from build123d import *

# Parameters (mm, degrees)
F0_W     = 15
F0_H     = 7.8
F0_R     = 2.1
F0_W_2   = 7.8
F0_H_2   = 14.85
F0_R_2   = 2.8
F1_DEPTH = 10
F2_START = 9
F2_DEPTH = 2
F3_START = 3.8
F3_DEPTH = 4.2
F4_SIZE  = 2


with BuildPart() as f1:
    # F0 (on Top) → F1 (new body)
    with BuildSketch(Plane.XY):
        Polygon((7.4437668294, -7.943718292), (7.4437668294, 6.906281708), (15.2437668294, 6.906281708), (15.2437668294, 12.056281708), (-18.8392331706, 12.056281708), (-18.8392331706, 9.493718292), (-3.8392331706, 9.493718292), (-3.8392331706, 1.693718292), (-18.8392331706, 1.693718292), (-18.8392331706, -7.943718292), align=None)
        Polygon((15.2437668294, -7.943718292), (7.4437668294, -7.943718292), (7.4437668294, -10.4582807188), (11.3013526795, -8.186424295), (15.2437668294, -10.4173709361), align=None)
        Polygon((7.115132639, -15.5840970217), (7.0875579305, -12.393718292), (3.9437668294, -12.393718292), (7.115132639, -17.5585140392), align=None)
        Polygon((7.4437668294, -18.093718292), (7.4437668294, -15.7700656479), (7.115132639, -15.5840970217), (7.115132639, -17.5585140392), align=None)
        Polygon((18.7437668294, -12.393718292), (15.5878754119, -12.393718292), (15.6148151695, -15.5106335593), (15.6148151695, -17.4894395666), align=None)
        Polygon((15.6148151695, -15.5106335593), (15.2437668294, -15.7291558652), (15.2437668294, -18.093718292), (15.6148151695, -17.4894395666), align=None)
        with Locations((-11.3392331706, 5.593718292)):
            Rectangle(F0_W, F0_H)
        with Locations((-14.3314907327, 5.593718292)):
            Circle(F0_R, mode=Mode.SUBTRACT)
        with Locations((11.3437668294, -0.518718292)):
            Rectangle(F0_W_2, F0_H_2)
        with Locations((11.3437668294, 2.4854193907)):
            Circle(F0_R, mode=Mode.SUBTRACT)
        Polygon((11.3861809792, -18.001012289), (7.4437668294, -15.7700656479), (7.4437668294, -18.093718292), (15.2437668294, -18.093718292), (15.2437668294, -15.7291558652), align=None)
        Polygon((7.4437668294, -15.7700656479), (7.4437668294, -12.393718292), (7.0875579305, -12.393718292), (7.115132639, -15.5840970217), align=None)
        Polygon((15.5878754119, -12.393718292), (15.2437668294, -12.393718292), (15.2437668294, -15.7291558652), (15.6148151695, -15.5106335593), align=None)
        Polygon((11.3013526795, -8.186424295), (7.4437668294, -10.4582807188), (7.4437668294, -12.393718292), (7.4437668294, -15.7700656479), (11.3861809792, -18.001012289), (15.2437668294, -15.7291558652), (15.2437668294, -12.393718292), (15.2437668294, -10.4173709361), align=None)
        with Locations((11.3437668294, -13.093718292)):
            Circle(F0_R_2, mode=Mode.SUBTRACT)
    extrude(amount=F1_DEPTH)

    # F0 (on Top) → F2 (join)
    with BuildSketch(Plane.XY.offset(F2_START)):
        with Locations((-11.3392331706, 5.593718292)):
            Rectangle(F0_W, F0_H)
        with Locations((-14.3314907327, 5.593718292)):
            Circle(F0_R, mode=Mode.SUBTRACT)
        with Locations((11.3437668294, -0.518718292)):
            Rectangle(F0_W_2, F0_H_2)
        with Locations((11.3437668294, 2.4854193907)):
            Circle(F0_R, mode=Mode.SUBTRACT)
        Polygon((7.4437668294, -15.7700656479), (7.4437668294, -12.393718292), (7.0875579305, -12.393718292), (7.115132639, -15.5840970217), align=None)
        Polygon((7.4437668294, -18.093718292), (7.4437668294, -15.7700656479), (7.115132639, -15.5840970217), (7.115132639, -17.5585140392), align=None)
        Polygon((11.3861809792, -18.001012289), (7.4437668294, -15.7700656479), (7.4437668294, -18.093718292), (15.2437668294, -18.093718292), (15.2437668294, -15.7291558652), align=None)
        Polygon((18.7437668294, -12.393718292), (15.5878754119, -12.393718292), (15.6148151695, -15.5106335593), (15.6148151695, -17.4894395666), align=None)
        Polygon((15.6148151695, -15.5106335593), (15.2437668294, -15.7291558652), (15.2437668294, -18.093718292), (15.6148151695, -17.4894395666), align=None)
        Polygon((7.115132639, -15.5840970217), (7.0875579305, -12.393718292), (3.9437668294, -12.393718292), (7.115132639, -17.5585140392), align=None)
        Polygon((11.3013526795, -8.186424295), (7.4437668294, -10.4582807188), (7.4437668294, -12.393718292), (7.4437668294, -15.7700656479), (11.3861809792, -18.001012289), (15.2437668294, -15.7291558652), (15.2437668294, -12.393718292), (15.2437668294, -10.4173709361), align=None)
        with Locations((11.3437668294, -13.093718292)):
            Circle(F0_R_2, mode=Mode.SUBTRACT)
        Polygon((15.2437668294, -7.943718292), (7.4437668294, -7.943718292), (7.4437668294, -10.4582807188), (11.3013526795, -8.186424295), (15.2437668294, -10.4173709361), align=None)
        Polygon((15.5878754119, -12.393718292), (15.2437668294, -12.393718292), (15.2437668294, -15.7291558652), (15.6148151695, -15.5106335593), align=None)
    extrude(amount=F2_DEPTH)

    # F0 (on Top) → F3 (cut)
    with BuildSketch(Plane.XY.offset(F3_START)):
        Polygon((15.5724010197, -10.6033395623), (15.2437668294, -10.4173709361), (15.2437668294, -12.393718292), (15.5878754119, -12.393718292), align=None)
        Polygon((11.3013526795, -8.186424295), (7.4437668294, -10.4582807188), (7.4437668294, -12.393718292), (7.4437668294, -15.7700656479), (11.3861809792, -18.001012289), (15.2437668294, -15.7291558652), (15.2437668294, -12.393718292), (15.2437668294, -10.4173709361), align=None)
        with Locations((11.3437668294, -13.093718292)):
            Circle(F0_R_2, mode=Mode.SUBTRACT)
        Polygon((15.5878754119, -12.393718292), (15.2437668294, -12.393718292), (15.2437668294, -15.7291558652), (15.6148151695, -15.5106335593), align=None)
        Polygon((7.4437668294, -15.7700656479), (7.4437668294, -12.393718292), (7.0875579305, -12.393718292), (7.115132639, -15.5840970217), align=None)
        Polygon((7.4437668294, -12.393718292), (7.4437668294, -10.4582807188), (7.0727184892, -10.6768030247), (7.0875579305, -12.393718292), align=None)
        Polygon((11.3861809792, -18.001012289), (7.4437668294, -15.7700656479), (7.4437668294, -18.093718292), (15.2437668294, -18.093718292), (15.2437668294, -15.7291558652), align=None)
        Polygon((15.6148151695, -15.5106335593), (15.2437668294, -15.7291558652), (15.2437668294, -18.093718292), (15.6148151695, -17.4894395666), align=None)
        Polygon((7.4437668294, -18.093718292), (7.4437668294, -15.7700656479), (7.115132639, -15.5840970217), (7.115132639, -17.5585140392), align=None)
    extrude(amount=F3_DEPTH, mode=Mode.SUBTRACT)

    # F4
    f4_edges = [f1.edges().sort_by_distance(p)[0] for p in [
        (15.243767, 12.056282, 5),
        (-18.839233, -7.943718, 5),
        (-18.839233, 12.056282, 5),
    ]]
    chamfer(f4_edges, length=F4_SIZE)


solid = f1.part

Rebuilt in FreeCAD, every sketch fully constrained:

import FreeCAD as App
import Part
import Sketcher
from FreeCAD import Vector


def edges_at(feature, points):
    """Names of the edges that pass closest to the given points."""
    edges = feature.Shape.Edges
    near = lambda p: min(range(len(edges)), key=lambda i: edges[i].distToShape(Part.Vertex(*p))[0])
    return sorted({f"Edge{near(p) + 1}" for p in points})


def add_polygon(sketch, points):
    """Adds a closed chain of lines whose ends are joined by coincident constraints."""
    first, n = sketch.GeometryCount, len(points)
    for a, b in zip(points, points[1:] + points[:1]):
        sketch.addGeometry(Part.LineSegment(App.Vector(*a, 0), App.Vector(*b, 0)), False)
    for i in range(n):
        sketch.addConstraint(Sketcher.Constraint("Coincident", first + i, 2, first + (i + 1) % n, 1))

doc = App.newDocument("Part")
body = doc.addObject("PartDesign::Body", "Body")

# Sketch on XY plane
sketch1 = body.newObject("Sketcher::SketchObject", "Sketch")
sketch1.AttachmentSupport = (doc.getObject("XY_Plane"), [""])
sketch1.MapMode = "FlatFace"
add_polygon(sketch1, [(-18.8, -7.9), (7.4, -7.9), (7.4, -12.4), (3.9, -12.4), (7.1, -17.6), (7.4, -18.1), (15.2, -18.1), (15.6, -17.5), (18.7, -12.4), (15.2, -12.4), (15.2, 12.1), (-18.8, 12.1)])  # lines 0-11
sketch1.addGeometry(Part.Circle(Vector(11.3, -13.1, 0), Vector(0, 0, 1), 2.8), False)  # 12
sketch1.addGeometry(Part.Circle(Vector(-14.3, 5.6, 0), Vector(0, 0, 1), 2.1), False)  # 13
sketch1.addGeometry(Part.Circle(Vector(11.3, 2.5, 0), Vector(0, 0, 1), 2.1), False)  # 14
sketch1.addConstraint(Sketcher.Constraint("Horizontal", 0))
sketch1.addConstraint(Sketcher.Constraint("Vertical", 1))
sketch1.addConstraint(Sketcher.Constraint("Horizontal", 2))
sketch1.addConstraint(Sketcher.Constraint("Horizontal", 5))
sketch1.addConstraint(Sketcher.Constraint("Horizontal", 8))
sketch1.addConstraint(Sketcher.Constraint("Vertical", 9))
sketch1.addConstraint(Sketcher.Constraint("Horizontal", 10))
sketch1.addConstraint(Sketcher.Constraint("Vertical", 11))
sketch1.addConstraint(Sketcher.Constraint("Equal", 13, 14))
sketch1.addConstraint(Sketcher.Constraint("Parallel", 3, 4))
sketch1.addConstraint(Sketcher.Constraint("Parallel", 6, 7))
sketch1.addConstraint(Sketcher.Constraint("Horizontal", 2, 2, 7, 2))
sketch1.addConstraint(Sketcher.Constraint("Vertical", 12, 3, 14, 3))
sketch1.addConstraint(Sketcher.Constraint("Vertical", 1, 2, 4, 2))
sketch1.addConstraint(Sketcher.Constraint("Vertical", 5, 2, 8, 2))
sketch1.addConstraint(Sketcher.Constraint("Equal", 2, 8))
sketch1.addConstraint(Sketcher.Constraint("Diameter", 12, 5.6))
sketch1.addConstraint(Sketcher.Constraint("Diameter", 13, 4.2))
sketch1.addConstraint(Sketcher.Constraint("DistanceY", 11, 2, 11, 1, 20.0))
sketch1.addConstraint(Sketcher.Constraint("DistanceX", 2, 2, 2, 1, 3.5))
sketch1.addConstraint(Sketcher.Constraint("DistanceX", 5, 1, 5, 2, 7.8))
sketch1.addConstraint(Sketcher.Constraint("DistanceY", 4, 2, 12, 3, 5.0))
sketch1.addConstraint(Sketcher.Constraint("DistanceY", 1, 2, 1, 1, 4.45))
sketch1.addConstraint(Sketcher.Constraint("DistanceX", 0, 2, 12, 3, 3.9))
sketch1.addConstraint(Sketcher.Constraint("DistanceY", 12, 3, 1, 2, 0.7))
sketch1.addConstraint(Sketcher.Constraint("DistanceX", 0, 1, 0, 2, 26.283))
sketch1.addConstraint(Sketcher.Constraint("DistanceY", 14, 3, 13, 3, 3.108299))
sketch1.addConstraint(Sketcher.Constraint("Distance", 3, 6.060749))
sketch1.addConstraint(Sketcher.Constraint("Distance", 7, 5.979692))
sketch1.addConstraint(Sketcher.Constraint("DistanceY", 12, 3, -1, 1, 13.093718))
sketch1.addConstraint(Sketcher.Constraint("DistanceX", 13, 3, -1, 1, 14.331491))
sketch1.addConstraint(Sketcher.Constraint("DistanceY", -1, 1, 13, 3, 5.593718))
sketch1.addConstraint(Sketcher.Constraint("DistanceX", -1, 1, 12, 3, 11.343767))
pad1 = body.newObject("PartDesign::Pad", "Pad")
pad1.Profile = sketch1
pad1.Length = 10

# Sketch on XY plane
sketch2 = body.newObject("Sketcher::SketchObject", "Sketch001")
sketch2.AttachmentSupport = (doc.getObject("XY_Plane"), [""])
sketch2.MapMode = "FlatFace"
sketch2.AttachmentOffset = App.Placement(Vector(0, 0, 9), App.Rotation())
add_polygon(sketch2, [(-18.8, 9.5), (-18.8, 1.7), (-3.8, 1.7), (-3.8, 9.5)])  # lines 0-3
sketch2.addGeometry(Part.Circle(Vector(-14.3, 5.6, 0), Vector(0, 0, 1), 2.1), False)  # 4
add_polygon(sketch2, [(7.4, 6.9), (7.4, -12.4), (3.9, -12.4), (7.1, -17.6), (7.4, -18.1), (15.2, -18.1), (15.6, -17.5), (18.7, -12.4), (15.2, -12.4), (15.2, 6.9)])  # lines 5-14
sketch2.addGeometry(Part.Circle(Vector(11.3, 2.5, 0), Vector(0, 0, 1), 2.1), False)  # 15
sketch2.addGeometry(Part.Circle(Vector(11.3, -13.1, 0), Vector(0, 0, 1), 2.8), False)  # 16
sketch2.addConstraint(Sketcher.Constraint("Vertical", 0))
sketch2.addConstraint(Sketcher.Constraint("Horizontal", 1))
sketch2.addConstraint(Sketcher.Constraint("Vertical", 2))
sketch2.addConstraint(Sketcher.Constraint("Horizontal", 3))
sketch2.addConstraint(Sketcher.Constraint("Vertical", 5))
sketch2.addConstraint(Sketcher.Constraint("Horizontal", 6))
sketch2.addConstraint(Sketcher.Constraint("Horizontal", 9))
sketch2.addConstraint(Sketcher.Constraint("Horizontal", 12))
sketch2.addConstraint(Sketcher.Constraint("Vertical", 13))
sketch2.addConstraint(Sketcher.Constraint("Horizontal", 14))
sketch2.addConstraint(Sketcher.Constraint("Equal", 4, 15))
sketch2.addConstraint(Sketcher.Constraint("Parallel", 7, 8))
sketch2.addConstraint(Sketcher.Constraint("Parallel", 10, 11))
sketch2.addConstraint(Sketcher.Constraint("Horizontal", 6, 2, 11, 2))
sketch2.addConstraint(Sketcher.Constraint("Vertical", 15, 3, 16, 3))
sketch2.addConstraint(Sketcher.Constraint("Vertical", 5, 2, 8, 2))
sketch2.addConstraint(Sketcher.Constraint("Vertical", 9, 2, 12, 2))
sketch2.addConstraint(Sketcher.Constraint("Equal", 6, 12))
sketch2.addConstraint(Sketcher.Constraint("Equal", 14, 0))
sketch2.addConstraint(Sketcher.Constraint("Diameter", 4, 4.2))
sketch2.addConstraint(Sketcher.Constraint("Diameter", 16, 5.6))
sketch2.addConstraint(Sketcher.Constraint("DistanceX", 1, 1, 1, 2, 15.0))
sketch2.addConstraint(Sketcher.Constraint("DistanceX", 6, 2, 6, 1, 3.5))
sketch2.addConstraint(Sketcher.Constraint("DistanceX", 9, 1, 9, 2, 7.8))
sketch2.addConstraint(Sketcher.Constraint("DistanceY", 5, 2, 5, 1, 19.3))
sketch2.addConstraint(Sketcher.Constraint("DistanceY", 8, 2, 16, 3, 5.0))
sketch2.addConstraint(Sketcher.Constraint("DistanceY", 0, 2, 4, 3, 3.9))
sketch2.addConstraint(Sketcher.Constraint("DistanceX", 5, 2, 16, 3, 3.9))
sketch2.addConstraint(Sketcher.Constraint("DistanceY", 16, 3, 5, 2, 0.7))
sketch2.addConstraint(Sketcher.Constraint("DistanceX", 0, 2, 15, 3, 30.183))
sketch2.addConstraint(Sketcher.Constraint("DistanceY", 15, 3, 4, 3, 3.108299))
sketch2.addConstraint(Sketcher.Constraint("Distance", 7, 6.060749))
sketch2.addConstraint(Sketcher.Constraint("Distance", 11, 5.979692))
sketch2.addConstraint(Sketcher.Constraint("DistanceX", 4, 3, -1, 1, 14.331491))
sketch2.addConstraint(Sketcher.Constraint("DistanceY", -1, 1, 4, 3, 5.593718))
sketch2.addConstraint(Sketcher.Constraint("DistanceY", 16, 3, -1, 1, 13.093718))
sketch2.addConstraint(Sketcher.Constraint("DistanceX", -1, 1, 15, 3, 11.343767))
pad2 = body.newObject("PartDesign::Pad", "Pad001")
pad2.Profile = sketch2
pad2.Length = 2

# Sketch on XY plane
sketch3 = body.newObject("Sketcher::SketchObject", "Sketch002")
sketch3.AttachmentSupport = (doc.getObject("XY_Plane"), [""])
sketch3.MapMode = "FlatFace"
sketch3.AttachmentOffset = App.Placement(Vector(0, 0, 3.8), App.Rotation())
add_polygon(sketch3, [(15.572401, -10.60334), (15.243767, -10.417371), (11.301353, -8.186424), (7.443767, -10.458281), (7.072718, -10.676803), (7.087558, -12.393718), (7.115133, -15.584097), (7.115133, -17.558514), (7.443767, -18.093718), (15.243767, -18.093718), (15.614815, -17.48944), (15.614815, -15.510634), (15.587875, -12.393718)])  # lines 0-12
sketch3.addGeometry(Part.Circle(Vector(11.343767, -13.093718, 0), Vector(0, 0, 1), 2.8), False)  # 13
sketch3.addConstraint(Sketcher.Constraint("Vertical", 6))
sketch3.addConstraint(Sketcher.Constraint("Horizontal", 8))
sketch3.addConstraint(Sketcher.Constraint("Vertical", 10))
sketch3.addConstraint(Sketcher.Constraint("Diameter", 13, 5.6))
sketch3.addConstraint(Sketcher.Constraint("DistanceX", 8, 1, 8, 2, 7.8))
sketch3.addConstraint(Sketcher.Constraint("DistanceY", 7, 2, 13, 3, 5.0))
sketch3.addConstraint(Sketcher.Constraint("DistanceX", 13, 3, 0, 2, 3.9))
sketch3.addConstraint(Sketcher.Constraint("DistanceX", 2, 2, 13, 3, 3.9))
sketch3.addConstraint(Sketcher.Constraint("DistanceY", 13, 3, 4, 2, 0.7))
sketch3.addConstraint(Sketcher.Constraint("DistanceX", 7, 2, 13, 3, 3.9))
sketch3.addConstraint(Sketcher.Constraint("DistanceY", 13, 3, 11, 2, 0.7))
sketch3.addConstraint(Sketcher.Constraint("DistanceX", -1, 1, 12, 2, 15.572401))
sketch3.addConstraint(Sketcher.Constraint("Distance", 4, 1.716979))
sketch3.addConstraint(Sketcher.Constraint("Distance", 11, 3.117032))
sketch3.addConstraint(Sketcher.Constraint("DistanceY", 6, 2, 6, 1, 1.974417))
sketch3.addConstraint(Sketcher.Constraint("DistanceY", 10, 1, 10, 2, 1.978806))
sketch3.addConstraint(Sketcher.Constraint("DistanceY", 13, 3, -1, 1, 13.093718))
sketch3.addConstraint(Sketcher.Constraint("DistanceY", 0, 2, -1, 1, 10.417371))
sketch3.addConstraint(Sketcher.Constraint("DistanceY", 2, 2, -1, 1, 10.458281))
sketch3.addConstraint(Sketcher.Constraint("DistanceX", -1, 1, 3, 2, 7.072718))
sketch3.addConstraint(Sketcher.Constraint("DistanceY", 9, 2, -1, 1, 17.48944))
sketch3.addConstraint(Sketcher.Constraint("DistanceY", 12, 2, -1, 1, 10.60334))
sketch3.addConstraint(Sketcher.Constraint("DistanceX", 3, 2, 2, 2, 0.371048))
sketch3.addConstraint(Sketcher.Constraint("DistanceY", 3, 2, 1, 2, 2.490379))
sketch3.addConstraint(Sketcher.Constraint("DistanceX", 3, 2, 4, 2, 0.014839))
sketch3.addConstraint(Sketcher.Constraint("DistanceY", 5, 2, 4, 2, 3.190379))
sketch3.addConstraint(Sketcher.Constraint("DistanceX", 5, 2, 1, 2, 4.18622))
sketch3.addConstraint(Sketcher.Constraint("DistanceX", 8, 2, 9, 2, 0.371048))
sketch3.addConstraint(Sketcher.Constraint("DistanceX", 1, 2, 12, 2, 4.271048))
pocket1 = body.newObject("PartDesign::Pocket", "Pocket")
pocket1.Profile = sketch3
pocket1.Length = 4.2
pocket1.Reversed = True
doc.recompute()

chamfer = body.newObject("PartDesign::Chamfer", "Chamfer")
chamfer.Base = (pocket1, edges_at(pocket1, [(15.244, 12.056, 5), (-18.839, -7.944, 5), (-18.839, 12.056, 5)]))
chamfer.Size = 2

doc.recompute()
